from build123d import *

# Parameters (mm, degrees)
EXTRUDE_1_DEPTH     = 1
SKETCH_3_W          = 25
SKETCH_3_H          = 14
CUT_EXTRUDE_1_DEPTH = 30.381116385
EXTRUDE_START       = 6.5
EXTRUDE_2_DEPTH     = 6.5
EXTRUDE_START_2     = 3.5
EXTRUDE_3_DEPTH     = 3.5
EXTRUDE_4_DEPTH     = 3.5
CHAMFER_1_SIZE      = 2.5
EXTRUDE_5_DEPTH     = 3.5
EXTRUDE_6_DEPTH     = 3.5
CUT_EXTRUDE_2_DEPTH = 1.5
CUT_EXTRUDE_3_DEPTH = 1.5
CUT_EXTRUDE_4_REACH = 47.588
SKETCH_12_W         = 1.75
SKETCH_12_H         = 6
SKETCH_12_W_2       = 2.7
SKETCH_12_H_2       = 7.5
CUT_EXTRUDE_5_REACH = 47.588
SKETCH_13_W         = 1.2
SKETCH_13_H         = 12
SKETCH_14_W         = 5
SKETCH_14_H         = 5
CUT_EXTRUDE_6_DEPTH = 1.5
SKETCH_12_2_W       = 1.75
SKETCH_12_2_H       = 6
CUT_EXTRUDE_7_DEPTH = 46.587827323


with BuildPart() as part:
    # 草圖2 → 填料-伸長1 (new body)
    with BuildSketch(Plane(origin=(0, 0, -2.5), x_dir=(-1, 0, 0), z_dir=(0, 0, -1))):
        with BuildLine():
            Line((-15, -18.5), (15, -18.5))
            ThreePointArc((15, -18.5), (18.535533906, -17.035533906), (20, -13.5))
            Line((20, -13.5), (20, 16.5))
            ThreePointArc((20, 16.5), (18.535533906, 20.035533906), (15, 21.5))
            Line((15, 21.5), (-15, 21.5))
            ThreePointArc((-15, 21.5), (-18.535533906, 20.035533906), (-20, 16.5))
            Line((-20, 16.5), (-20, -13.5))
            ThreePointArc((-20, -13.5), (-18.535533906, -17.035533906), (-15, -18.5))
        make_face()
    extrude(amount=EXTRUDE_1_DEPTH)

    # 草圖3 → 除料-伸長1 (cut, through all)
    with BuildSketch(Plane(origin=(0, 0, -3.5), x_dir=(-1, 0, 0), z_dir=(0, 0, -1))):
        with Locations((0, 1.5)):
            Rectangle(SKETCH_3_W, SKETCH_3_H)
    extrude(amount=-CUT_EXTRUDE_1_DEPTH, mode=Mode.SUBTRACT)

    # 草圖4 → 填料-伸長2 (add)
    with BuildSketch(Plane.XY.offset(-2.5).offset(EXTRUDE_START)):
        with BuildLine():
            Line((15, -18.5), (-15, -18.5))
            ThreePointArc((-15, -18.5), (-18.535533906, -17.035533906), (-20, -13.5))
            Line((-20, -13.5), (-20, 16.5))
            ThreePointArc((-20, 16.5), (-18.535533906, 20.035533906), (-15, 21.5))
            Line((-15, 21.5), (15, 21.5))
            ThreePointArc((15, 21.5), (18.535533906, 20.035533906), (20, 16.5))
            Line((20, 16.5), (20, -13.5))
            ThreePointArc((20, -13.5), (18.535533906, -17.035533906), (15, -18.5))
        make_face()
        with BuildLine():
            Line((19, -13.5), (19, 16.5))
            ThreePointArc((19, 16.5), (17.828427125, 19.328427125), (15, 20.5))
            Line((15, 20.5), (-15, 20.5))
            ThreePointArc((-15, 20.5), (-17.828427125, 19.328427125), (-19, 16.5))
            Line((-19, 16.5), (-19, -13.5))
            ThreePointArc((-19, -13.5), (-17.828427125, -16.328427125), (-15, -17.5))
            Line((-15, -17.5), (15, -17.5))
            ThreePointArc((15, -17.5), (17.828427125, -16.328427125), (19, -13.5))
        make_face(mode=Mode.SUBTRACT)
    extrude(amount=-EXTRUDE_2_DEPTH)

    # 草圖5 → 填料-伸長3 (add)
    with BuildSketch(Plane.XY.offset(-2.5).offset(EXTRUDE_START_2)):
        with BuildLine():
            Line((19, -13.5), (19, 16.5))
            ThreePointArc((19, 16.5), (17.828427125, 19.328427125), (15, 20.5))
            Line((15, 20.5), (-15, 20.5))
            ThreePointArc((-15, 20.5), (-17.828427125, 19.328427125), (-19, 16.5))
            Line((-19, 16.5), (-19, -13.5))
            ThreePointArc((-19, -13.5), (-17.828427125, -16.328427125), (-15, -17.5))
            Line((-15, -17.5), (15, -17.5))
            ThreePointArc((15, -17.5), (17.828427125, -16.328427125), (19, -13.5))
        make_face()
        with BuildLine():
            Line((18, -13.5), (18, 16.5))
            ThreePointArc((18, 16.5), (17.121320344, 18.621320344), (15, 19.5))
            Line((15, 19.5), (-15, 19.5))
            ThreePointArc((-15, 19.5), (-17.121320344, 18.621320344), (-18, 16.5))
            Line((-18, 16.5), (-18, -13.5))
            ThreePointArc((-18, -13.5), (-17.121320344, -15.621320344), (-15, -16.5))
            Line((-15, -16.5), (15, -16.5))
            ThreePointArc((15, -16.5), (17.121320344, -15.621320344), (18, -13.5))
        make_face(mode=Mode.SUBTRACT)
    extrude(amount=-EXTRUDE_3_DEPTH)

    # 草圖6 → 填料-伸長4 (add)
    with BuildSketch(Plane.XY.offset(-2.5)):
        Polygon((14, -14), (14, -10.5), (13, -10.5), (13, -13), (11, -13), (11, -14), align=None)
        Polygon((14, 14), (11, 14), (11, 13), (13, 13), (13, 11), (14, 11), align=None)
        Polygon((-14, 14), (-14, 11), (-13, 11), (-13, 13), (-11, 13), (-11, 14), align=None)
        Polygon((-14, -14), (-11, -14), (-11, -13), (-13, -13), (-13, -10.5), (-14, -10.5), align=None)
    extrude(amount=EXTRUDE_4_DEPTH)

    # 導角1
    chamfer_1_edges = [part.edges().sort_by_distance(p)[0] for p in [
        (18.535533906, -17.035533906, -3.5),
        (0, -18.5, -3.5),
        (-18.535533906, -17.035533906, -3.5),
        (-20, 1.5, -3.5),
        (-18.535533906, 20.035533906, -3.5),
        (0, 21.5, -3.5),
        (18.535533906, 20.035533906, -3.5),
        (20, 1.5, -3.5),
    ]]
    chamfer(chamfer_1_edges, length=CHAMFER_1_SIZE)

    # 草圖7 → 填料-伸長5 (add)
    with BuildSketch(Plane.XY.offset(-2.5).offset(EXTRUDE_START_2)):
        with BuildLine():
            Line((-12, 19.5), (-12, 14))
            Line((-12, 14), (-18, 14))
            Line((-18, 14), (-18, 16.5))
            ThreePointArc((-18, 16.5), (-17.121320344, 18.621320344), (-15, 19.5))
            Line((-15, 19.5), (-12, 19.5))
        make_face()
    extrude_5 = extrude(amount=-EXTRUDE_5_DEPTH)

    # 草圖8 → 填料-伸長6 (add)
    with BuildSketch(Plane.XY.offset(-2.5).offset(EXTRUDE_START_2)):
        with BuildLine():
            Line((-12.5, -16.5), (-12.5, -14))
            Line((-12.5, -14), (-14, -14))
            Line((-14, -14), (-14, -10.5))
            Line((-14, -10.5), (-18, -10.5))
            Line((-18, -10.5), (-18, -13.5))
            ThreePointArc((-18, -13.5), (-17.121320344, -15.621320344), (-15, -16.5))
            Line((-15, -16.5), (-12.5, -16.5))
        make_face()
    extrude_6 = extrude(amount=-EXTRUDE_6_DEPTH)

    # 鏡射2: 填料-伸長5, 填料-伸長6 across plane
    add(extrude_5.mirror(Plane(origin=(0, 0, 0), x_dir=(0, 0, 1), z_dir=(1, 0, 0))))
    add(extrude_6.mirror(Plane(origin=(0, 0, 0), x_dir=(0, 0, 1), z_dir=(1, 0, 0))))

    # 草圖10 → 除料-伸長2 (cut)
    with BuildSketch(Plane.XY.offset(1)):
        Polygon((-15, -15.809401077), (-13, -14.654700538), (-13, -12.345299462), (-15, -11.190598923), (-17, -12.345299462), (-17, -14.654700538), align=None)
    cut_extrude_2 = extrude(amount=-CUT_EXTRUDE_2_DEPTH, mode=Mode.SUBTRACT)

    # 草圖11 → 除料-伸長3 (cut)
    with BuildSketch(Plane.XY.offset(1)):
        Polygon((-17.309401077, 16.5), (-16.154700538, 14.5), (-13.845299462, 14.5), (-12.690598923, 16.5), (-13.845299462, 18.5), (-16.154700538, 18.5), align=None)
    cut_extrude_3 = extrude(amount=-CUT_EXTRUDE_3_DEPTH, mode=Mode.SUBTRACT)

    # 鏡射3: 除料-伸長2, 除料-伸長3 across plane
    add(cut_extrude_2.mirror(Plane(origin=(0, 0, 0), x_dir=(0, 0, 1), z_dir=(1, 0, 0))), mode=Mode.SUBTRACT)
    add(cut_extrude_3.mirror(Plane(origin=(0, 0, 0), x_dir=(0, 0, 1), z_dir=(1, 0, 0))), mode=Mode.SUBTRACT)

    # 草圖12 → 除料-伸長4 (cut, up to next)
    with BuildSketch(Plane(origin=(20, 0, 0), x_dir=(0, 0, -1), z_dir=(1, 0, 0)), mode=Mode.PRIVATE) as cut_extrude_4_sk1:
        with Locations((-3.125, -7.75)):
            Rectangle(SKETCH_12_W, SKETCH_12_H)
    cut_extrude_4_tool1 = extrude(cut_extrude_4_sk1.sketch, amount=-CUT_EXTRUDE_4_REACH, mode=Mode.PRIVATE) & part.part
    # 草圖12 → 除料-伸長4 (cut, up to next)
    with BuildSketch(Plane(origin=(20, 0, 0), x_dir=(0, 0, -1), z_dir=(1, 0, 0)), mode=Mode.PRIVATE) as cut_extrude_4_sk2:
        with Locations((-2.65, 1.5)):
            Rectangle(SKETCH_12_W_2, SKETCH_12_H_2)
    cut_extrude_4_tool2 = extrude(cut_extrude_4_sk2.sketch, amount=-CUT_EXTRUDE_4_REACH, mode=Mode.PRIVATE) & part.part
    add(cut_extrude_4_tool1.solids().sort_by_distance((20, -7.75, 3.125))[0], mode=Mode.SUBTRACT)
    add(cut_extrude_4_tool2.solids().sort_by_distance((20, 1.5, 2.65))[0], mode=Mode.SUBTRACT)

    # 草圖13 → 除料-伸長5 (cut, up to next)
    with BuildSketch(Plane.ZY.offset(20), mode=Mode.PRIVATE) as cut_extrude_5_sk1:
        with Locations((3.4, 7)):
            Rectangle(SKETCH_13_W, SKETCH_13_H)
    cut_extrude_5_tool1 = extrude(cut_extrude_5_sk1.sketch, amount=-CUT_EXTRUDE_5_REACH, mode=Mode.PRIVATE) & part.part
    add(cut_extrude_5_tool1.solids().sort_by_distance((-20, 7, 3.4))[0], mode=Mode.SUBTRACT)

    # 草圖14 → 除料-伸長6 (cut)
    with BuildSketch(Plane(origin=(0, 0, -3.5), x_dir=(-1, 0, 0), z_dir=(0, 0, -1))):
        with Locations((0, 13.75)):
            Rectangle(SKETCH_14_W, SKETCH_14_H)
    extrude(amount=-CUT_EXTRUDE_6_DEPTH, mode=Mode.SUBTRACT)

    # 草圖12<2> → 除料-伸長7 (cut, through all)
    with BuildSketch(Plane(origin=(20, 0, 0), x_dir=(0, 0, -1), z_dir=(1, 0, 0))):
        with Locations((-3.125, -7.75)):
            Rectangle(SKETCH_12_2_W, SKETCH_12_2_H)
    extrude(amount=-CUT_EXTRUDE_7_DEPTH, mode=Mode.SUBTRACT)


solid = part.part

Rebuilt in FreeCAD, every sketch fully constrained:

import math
import FreeCAD as App
import Part
import Sketcher

V = App.Vector
Q = App.Units.Quantity


def edges_at(feature, points):
    """Names of the edges that pass closest to the given points."""
    edges = feature.Shape.Edges
    near = lambda p: min(range(len(edges)), key=lambda i: edges[i].distToShape(Part.Vertex(*p))[0])
    return sorted({f"Edge{near(p) + 1}" for p in points})

doc = App.newDocument("Part")
body = doc.addObject("PartDesign::Body", "Body")

sketch1 = doc.addObject("Sketcher::SketchObject", "Sketch")
body.addObject(sketch1)
sketch1.AttachmentSupport = (doc.XY_Plane, [""])
sketch1.MapMode = "FlatFace"
sketch1.AttachmentOffset = App.Placement(V(0, 0, -2.5), App.Rotation())
sketch1.addGeometry([
    Part.LineSegment(V(15, -18, 0), V(-15, -18, 0)),
    Part.ArcOfCircle(Part.Circle(V(-15, -14, 0), V(0, 0, 1), 5), math.radians(180), math.radians(270)),
    Part.LineSegment(V(-20, -14, 0), V(-20, 16, 0)),
    Part.ArcOfCircle(Part.Circle(V(-15, 16, 0), V(0, 0, 1), 5), math.radians(90), math.radians(180)),
    Part.LineSegment(V(-15, 22, 0), V(15, 22, 0)),
    Part.ArcOfCircle(Part.Circle(V(15, 16, 0), V(0, 0, 1), 5), math.radians(0), math.radians(90)),
    Part.LineSegment(V(20, 16, 0), V(20, -14, 0)),
    Part.ArcOfCircle(Part.Circle(V(15, -14, 0), V(0, 0, 1), 5), math.radians(-90), math.radians(0)),
], False)
sketch1.addConstraint([
    Sketcher.Constraint("Tangent", 0, 2, 1, 2),
    Sketcher.Constraint("Tangent", 1, 1, 2, 1),
    Sketcher.Constraint("Tangent", 2, 2, 3, 2),
    Sketcher.Constraint("Tangent", 3, 1, 4, 1),
    Sketcher.Constraint("Tangent", 4, 2, 5, 2),
    Sketcher.Constraint("Tangent", 5, 1, 6, 1),
    Sketcher.Constraint("Tangent", 6, 2, 7, 2),
    Sketcher.Constraint("Tangent", 7, 1, 0, 1),
    Sketcher.Constraint("Horizontal", 0),
    Sketcher.Constraint("Vertical", 2),
    Sketcher.Constraint("Horizontal", 4),
    Sketcher.Constraint("Vertical", 6),
    Sketcher.Constraint("Equal", 1, 3),
    Sketcher.Constraint("Equal", 3, 5),
    Sketcher.Constraint("Equal", 5, 7),
    Sketcher.Constraint("Equal", 4, 2),
    Sketcher.Constraint("Radius", 1, 5.0),
    Sketcher.Constraint("DistanceX", 0, 2, 0, 1, 30.0),
    Sketcher.Constraint("DistanceX", 1, 3, -1, 1, 15.0),
    Sketcher.Constraint("DistanceY", 1, 3, -1, 1, 13.5),
])
pad1 = doc.addObject("PartDesign::Pad", "Pad")
body.addObject(pad1)
pad1.Profile = sketch1
pad1.Length = 1
pad1.Reversed = True

sketch2 = doc.addObject("Sketcher::SketchObject", "Sketch001")
body.addObject(sketch2)
sketch2.AttachmentSupport = (doc.XY_Plane, [""])
sketch2.MapMode = "FlatFace"
sketch2.AttachmentOffset = App.Placement(V(0, 0, -3.5), App.Rotation())
sketch2.addGeometry([
    Part.LineSegment(V(12, 8, 0), V(12, -6, 0)),
    Part.LineSegment(V(12, -6, 0), V(-12, -6, 0)),
    Part.LineSegment(V(-12, -6, 0), V(-12, 8, 0)),
    Part.LineSegment(V(-12, 8, 0), V(12, 8, 0)),
], False)
sketch2.addConstraint([
    Sketcher.Constraint("Coincident", 0, 2, 1, 1),
    Sketcher.Constraint("Coincident", 1, 2, 2, 1),
    Sketcher.Constraint("Coincident", 2, 2, 3, 1),
    Sketcher.Constraint("Coincident", 3, 2, 0, 1),
    Sketcher.Constraint("Vertical", 0),
    Sketcher.Constraint("Horizontal", 1),
    Sketcher.Constraint("Vertical", 2),
    Sketcher.Constraint("Horizontal", 3),
    Sketcher.Constraint("DistanceX", 1, 2, 1, 1, 25.0),
    Sketcher.Constraint("DistanceY", 0, 2, 0, 1, 14.0),
    Sketcher.Constraint("DistanceX", -1, 1, 0, 2, 12.5),
    Sketcher.Constraint("DistanceY", 0, 2, -1, 1, 5.5),
])
pocket1 = doc.addObject("PartDesign::Pocket", "Pocket")
body.addObject(pocket1)
pocket1.Profile = sketch2
pocket1.Type = "ThroughAll"
pocket1.Reversed = True

sketch3 = doc.addObject("Sketcher::SketchObject", "Sketch002")
body.addObject(sketch3)
sketch3.AttachmentSupport = (doc.XY_Plane, [""])
sketch3.MapMode = "FlatFace"
sketch3.AttachmentOffset = App.Placement(V(0, 0, 4), App.Rotation())
sketch3.addGeometry([
    Part.LineSegment(V(-15, -18.5, 0), V(15, -18.5, 0)),
    Part.ArcOfCircle(Part.Circle(V(15, -13.5, 0), V(0, 0, 1), 5), math.radians(-90), math.radians(0)),
    Part.LineSegment(V(20, -13.5, 0), V(20, 16.5, 0)),
    Part.ArcOfCircle(Part.Circle(V(15, 16.5, 0), V(0, 0, 1), 5), math.radians(0), math.radians(90)),
    Part.LineSegment(V(15, 21.5, 0), V(-15, 21.5, 0)),
    Part.ArcOfCircle(Part.Circle(V(-15, 16.5, 0), V(0, 0, 1), 5), math.radians(90), math.radians(180)),
    Part.LineSegment(V(-20, 16.5, 0), V(-20, -13.5, 0)),
    Part.ArcOfCircle(Part.Circle(V(-15, -13.5, 0), V(0, 0, 1), 5), math.radians(180), math.radians(270)),
    Part.ArcOfCircle(Part.Circle(V(15, -13.5, 0), V(0, 0, 1), 4), math.radians(-90), math.radians(0)),
    Part.LineSegment(V(15, -17.5, 0), V(-15, -17.5, 0)),
    Part.ArcOfCircle(Part.Circle(V(-15, -13.5, 0), V(0, 0, 1), 4), math.radians(180), math.radians(270)),
    Part.LineSegment(V(-19, -13.5, 0), V(-19, 16.5, 0)),
    Part.ArcOfCircle(Part.Circle(V(-15, 16.5, 0), V(0, 0, 1), 4), math.radians(90), math.radians(180)),
    Part.LineSegment(V(-15, 20.5, 0), V(15, 20.5, 0)),
    Part.ArcOfCircle(Part.Circle(V(15, 16.5, 0), V(0, 0, 1), 4), math.radians(0), math.radians(90)),
    Part.LineSegment(V(19, 16.5, 0), V(19, -13.5, 0)),
], False)
sketch3.addConstraint([
    Sketcher.Constraint("Tangent", 0, 2, 1, 1),
    Sketcher.Constraint("Tangent", 1, 2, 2, 1),
    Sketcher.Constraint("Tangent", 2, 2, 3, 1),
    Sketcher.Constraint("Tangent", 3, 2, 4, 1),
    Sketcher.Constraint("Tangent", 4, 2, 5, 1),
    Sketcher.Constraint("Tangent", 5, 2, 6, 1),
    Sketcher.Constraint("Tangent", 6, 2, 7, 1),
    Sketcher.Constraint("Tangent", 7, 2, 0, 1),
    Sketcher.Constraint("Tangent", 8, 1, 9, 1),
    Sketcher.Constraint("Tangent", 9, 2, 10, 2),
    Sketcher.Constraint("Tangent", 10, 1, 11, 1),
    Sketcher.Constraint("Tangent", 11, 2, 12, 2),
    Sketcher.Constraint("Tangent", 12, 1, 13, 1),
    Sketcher.Constraint("Tangent", 13, 2, 14, 2),
    Sketcher.Constraint("Tangent", 14, 1, 15, 1),
    Sketcher.Constraint("Tangent", 15, 2, 8, 2),
    Sketcher.Constraint("Horizontal", 0),
    Sketcher.Constraint("Vertical", 2),
    Sketcher.Constraint("Horizontal", 4),
    Sketcher.Constraint("Vertical", 6),
    Sketcher.Constraint("Horizontal", 9),
    Sketcher.Constraint("Vertical", 11),
    Sketcher.Constraint("Horizontal", 13),
    Sketcher.Constraint("Vertical", 15),
    Sketcher.Constraint("Coincident", 8, 3, 1, 3),
    Sketcher.Constraint("Coincident", 10, 3, 7, 3),
    Sketcher.Constraint("Coincident", 12, 3, 5, 3),
    Sketcher.Constraint("Equal", 1, 3),
    Sketcher.Constraint("Equal", 3, 5),
    Sketcher.Constraint("Equal", 5, 7),
    Sketcher.Constraint("Equal", 12, 14),
    Sketcher.Constraint("Equal", 13, 2),
    Sketcher.Constraint("Radius", 1, 5.0),
    Sketcher.Constraint("Radius", 8, 4.0),
    Sketcher.Constraint("DistanceX", 0, 1, 0, 2, 30.0),
    Sketcher.Constraint("DistanceX", -1, 1, 1, 3, 15.0),
    Sketcher.Constraint("DistanceY", 1, 3, -1, 1, 13.5),
])
pad2 = doc.addObject("PartDesign::Pad", "Pad001")
body.addObject(pad2)
pad2.Profile = sketch3
pad2.Length = 6.5
pad2.Reversed = True

sketch4 = doc.addObject("Sketcher::SketchObject", "Sketch003")
body.addObject(sketch4)
sketch4.AttachmentSupport = (doc.XY_Plane, [""])
sketch4.MapMode = "FlatFace"
sketch4.AttachmentOffset = App.Placement(V(0, 0, 1), App.Rotation())
sketch4.addGeometry([
    Part.LineSegment(V(19, -13.5, 0), V(19, 16.5, 0)),
    Part.ArcOfCircle(Part.Circle(V(15, 16.5, 0), V(0, 0, 1), 4), math.radians(0), math.radians(90)),
    Part.LineSegment(V(15, 20.5, 0), V(-15, 20.5, 0)),
    Part.ArcOfCircle(Part.Circle(V(-15, 16.5, 0), V(0, 0, 1), 4), math.radians(90), math.radians(180)),
    Part.LineSegment(V(-19, 16.5, 0), V(-19, -13.5, 0)),
    Part.ArcOfCircle(Part.Circle(V(-15, -13.5, 0), V(0, 0, 1), 4), math.radians(180), math.radians(270)),
    Part.LineSegment(V(-15, -17.5, 0), V(15, -17.5, 0)),
    Part.ArcOfCircle(Part.Circle(V(15, -13.5, 0), V(0, 0, 1), 4), math.radians(-90), math.radians(0)),
    Part.LineSegment(V(18, 16.5, 0), V(18, -13.5, 0)),
    Part.ArcOfCircle(Part.Circle(V(15, -13.5, 0), V(0, 0, 1), 3), math.radians(-90), math.radians(0)),
    Part.LineSegment(V(15, -16.5, 0), V(-15, -16.5, 0)),
    Part.ArcOfCircle(Part.Circle(V(-15, -13.5, 0), V(0, 0, 1), 3), math.radians(180), math.radians(270)),
    Part.LineSegment(V(-18, -13.5, 0), V(-18, 16.5, 0)),
    Part.ArcOfCircle(Part.Circle(V(-15, 16.5, 0), V(0, 0, 1), 3), math.radians(90), math.radians(180)),
    Part.LineSegment(V(-15, 19.5, 0), V(15, 19.5, 0)),
    Part.ArcOfCircle(Part.Circle(V(15, 16.5, 0), V(0, 0, 1), 3), math.radians(0), math.radians(90)),
], False)
sketch4.addConstraint([
    Sketcher.Constraint("Tangent", 0, 2, 1, 1),
    Sketcher.Constraint("Tangent", 1, 2, 2, 1),
    Sketcher.Constraint("Tangent", 2, 2, 3, 1),
    Sketcher.Constraint("Tangent", 3, 2, 4, 1),
    Sketcher.Constraint("Tangent", 4, 2, 5, 1),
    Sketcher.Constraint("Tangent", 5, 2, 6, 1),
    Sketcher.Constraint("Tangent", 6, 2, 7, 1),
    Sketcher.Constraint("Tangent", 7, 2, 0, 1),
    Sketcher.Constraint("Tangent", 8, 2, 9, 2),
    Sketcher.Constraint("Tangent", 9, 1, 10, 1),
    Sketcher.Constraint("Tangent", 10, 2, 11, 2),
    Sketcher.Constraint("Tangent", 11, 1, 12, 1),
    Sketcher.Constraint("Tangent", 12, 2, 13, 2),
    Sketcher.Constraint("Tangent", 13, 1, 14, 1),
    Sketcher.Constraint("Tangent", 14, 2, 15, 2),
    Sketcher.Constraint("Tangent", 15, 1, 8, 1),
    Sketcher.Constraint("Vertical", 0),
    Sketcher.Constraint("Horizontal", 2),
    Sketcher.Constraint("Vertical", 4),
    Sketcher.Constraint("Horizontal", 6),
    Sketcher.Constraint("Vertical", 8),
    Sketcher.Constraint("Horizontal", 10),
    Sketcher.Constraint("Vertical", 12),
    Sketcher.Constraint("Horizontal", 14),
    Sketcher.Constraint("Coincident", 9, 3, 7, 3),
    Sketcher.Constraint("Coincident", 11, 3, 5, 3),
    Sketcher.Constraint("Coincident", 13, 3, 3, 3),
    Sketcher.Constraint("Equal", 1, 3),
    Sketcher.Constraint("Equal", 3, 5),
    Sketcher.Constraint("Equal", 5, 7),
    Sketcher.Constraint("Equal", 13, 15),
    Sketcher.Constraint("Equal", 14, 0),
    Sketcher.Constraint("Radius", 1, 4.0),
    Sketcher.Constraint("Radius", 9, 3.0),
    Sketcher.Constraint("DistanceX", 2, 2, 2, 1, 30.0),
    Sketcher.Constraint("DistanceX", -1, 1, 1, 3, 15.0),
    Sketcher.Constraint("DistanceY", -1, 1, 1, 3, 16.5),
])
pad3 = doc.addObject("PartDesign::Pad", "Pad002")
body.addObject(pad3)
pad3.Profile = sketch4
pad3.Length = 3.5
pad3.Reversed = True

sketch5 = doc.addObject("Sketcher::SketchObject", "Sketch004")
body.addObject(sketch5)
sketch5.AttachmentSupport = (doc.XY_Plane, [""])
sketch5.MapMode = "FlatFace"
sketch5.AttachmentOffset = App.Placement(V(0, 0, -2.5), App.Rotation())
sketch5.addGeometry([
    Part.LineSegment(V(14, -14, 0), V(14, -10.5, 0)),
    Part.LineSegment(V(14, -10.5, 0), V(13, -10.5, 0)),
    Part.LineSegment(V(13, -10.5, 0), V(13, -13, 0)),
    Part.LineSegment(V(13, -13, 0), V(11, -13, 0)),
    Part.LineSegment(V(11, -13, 0), V(11, -14, 0)),
    Part.LineSegment(V(11, -14, 0), V(14, -14, 0)),
    Part.LineSegment(V(14, 14, 0), V(11, 14, 0)),
    Part.LineSegment(V(11, 14, 0), V(11, 13, 0)),
    Part.LineSegment(V(11, 13, 0), V(13, 13, 0)),
    Part.LineSegment(V(13, 13, 0), V(13, 11, 0)),
    Part.LineSegment(V(13, 11, 0), V(14, 11, 0)),
    Part.LineSegment(V(14, 11, 0), V(14, 14, 0)),
    Part.LineSegment(V(-14, 14, 0), V(-14, 11, 0)),
    Part.LineSegment(V(-14, 11, 0), V(-13, 11, 0)),
    Part.LineSegment(V(-13, 11, 0), V(-13, 13, 0)),
    Part.LineSegment(V(-13, 13, 0), V(-11, 13, 0)),
    Part.LineSegment(V(-11, 13, 0), V(-11, 14, 0)),
    Part.LineSegment(V(-11, 14, 0), V(-14, 14, 0)),
    Part.LineSegment(V(-14, -14, 0), V(-11, -14, 0)),
    Part.LineSegment(V(-11, -14, 0), V(-11, -13, 0)),
    Part.LineSegment(V(-11, -13, 0), V(-13, -13, 0)),
    Part.LineSegment(V(-13, -13, 0), V(-13, -10.5, 0)),
    Part.LineSegment(V(-13, -10.5, 0), V(-14, -10.5, 0)),
    Part.LineSegment(V(-14, -10.5, 0), V(-14, -14, 0)),
], False)
sketch5.addConstraint([
    Sketcher.Constraint("Coincident", 0, 2, 1, 1),
    Sketcher.Constraint("Coincident", 1, 2, 2, 1),
    Sketcher.Constraint("Coincident", 2, 2, 3, 1),
    Sketcher.Constraint("Coincident", 3, 2, 4, 1),
    Sketcher.Constraint("Coincident", 4, 2, 5, 1),
    Sketcher.Constraint("Coincident", 5, 2, 0, 1),
    Sketcher.Constraint("Coincident", 6, 2, 7, 1),
    Sketcher.Constraint("Coincident", 7, 2, 8, 1),
    Sketcher.Constraint("Coincident", 8, 2, 9, 1),
    Sketcher.Constraint("Coincident", 9, 2, 10, 1),
    Sketcher.Constraint("Coincident", 10, 2, 11, 1),
    Sketcher.Constraint("Coincident", 11, 2, 6, 1),
    Sketcher.Constraint("Coincident", 12, 2, 13, 1),
    Sketcher.Constraint("Coincident", 13, 2, 14, 1),
    Sketcher.Constraint("Coincident", 14, 2, 15, 1),
    Sketcher.Constraint("Coincident", 15, 2, 16, 1),
    Sketcher.Constraint("Coincident", 16, 2, 17, 1),
    Sketcher.Constraint("Coincident", 17, 2, 12, 1),
    Sketcher.Constraint("Coincident", 18, 2, 19, 1),
    Sketcher.Constraint("Coincident", 19, 2, 20, 1),
    Sketcher.Constraint("Coincident", 20, 2, 21, 1),
    Sketcher.Constraint("Coincident", 21, 2, 22, 1),
    Sketcher.Constraint("Coincident", 22, 2, 23, 1),
    Sketcher.Constraint("Coincident", 23, 2, 18, 1),
    Sketcher.Constraint("Vertical", 0),
    Sketcher.Constraint("Horizontal", 1),
    Sketcher.Constraint("Vertical", 2),
    Sketcher.Constraint("Horizontal", 3),
    Sketcher.Constraint("Vertical", 4),
    Sketcher.Constraint("Horizontal", 5),
    Sketcher.Constraint("Horizontal", 6),
    Sketcher.Constraint("Vertical", 7),
    Sketcher.Constraint("Horizontal", 8),
    Sketcher.Constraint("Vertical", 9),
    Sketcher.Constraint("Horizontal", 10),
    Sketcher.Constraint("Vertical", 11),
    Sketcher.Constraint("Vertical", 12),
    Sketcher.Constraint("Horizontal", 13),
    Sketcher.Constraint("Vertical", 14),
    Sketcher.Constraint("Horizontal", 15),
    Sketcher.Constraint("Vertical", 16),
    Sketcher.Constraint("Horizontal", 17),
    Sketcher.Constraint("Horizontal", 18),
    Sketcher.Constraint("Vertical", 19),
    Sketcher.Constraint("Horizontal", 20),
    Sketcher.Constraint("Vertical", 21),
    Sketcher.Constraint("Horizontal", 22),
    Sketcher.Constraint("Vertical", 23),
    Sketcher.Constraint("Symmetric", 2, 2, 14, 2, -1, 1),
    Sketcher.Constraint("Symmetric", 4, 2, 16, 2, -1, 1),
    Sketcher.Constraint("Symmetric", 6, 2, 18, 2, -1, 1),
    Sketcher.Constraint("Symmetric", 8, 2, 20, 2, -1, 1),
    Sketcher.Constraint("Symmetric", 10, 2, 12, 2, -2),
    Sketcher.Constraint("Symmetric", 8, 2, 14, 2, -2),
    Sketcher.Constraint("Symmetric", 6, 2, 16, 2, -2),
    Sketcher.Constraint("Symmetric", 0, 2, 22, 2, -2),
    Sketcher.Constraint("Vertical", 5, 2, 10, 2),
    Sketcher.Constraint("Equal", 22, 4),
    Sketcher.Constraint("Equal", 20, 9),
    Sketcher.Constraint("DistanceX", 1, 2, 1, 1, 1.0),
    Sketcher.Constraint("DistanceX", 3, 2, 3, 1, 2.0),
    Sketcher.Constraint("DistanceY", 0, 1, 0, 2, 3.5),
    Sketcher.Constraint("DistanceX", -1, 1, 0, 2, 14.0),
    Sketcher.Constraint("DistanceY", 2, 2, -1, 1, 13.0),
])
pad4 = doc.addObject("PartDesign::Pad", "Pad003")
body.addObject(pad4)
pad4.Profile = sketch5
pad4.Length = 3.5
doc.recompute()

chamfer = doc.addObject("PartDesign::Chamfer", "Chamfer")
body.addObject(chamfer)
chamfer.Base = (pad4, edges_at(pad4, [
    (18.536, -17.036, -3.5),
    (0, -18.5, -3.5),
    (-18.536, -17.036, -3.5),
    (-20, 1.5, -3.5),
    (-18.536, 20.036, -3.5),
    (0, 21.5, -3.5),
    (18.536, 20.036, -3.5),
    (20, 1.5, -3.5),
]))
chamfer.Size = 2.5

sketch6 = doc.addObject("Sketcher::SketchObject", "Sketch005")
body.addObject(sketch6)
sketch6.AttachmentSupport = (doc.XY_Plane, [""])
sketch6.MapMode = "FlatFace"
sketch6.AttachmentOffset = App.Placement(V(0, 0, 1), App.Rotation())
sketch6.addGeometry([
    Part.LineSegment(V(-12, 14, 0), V(-12, 19.5, 0)),
    Part.LineSegment(V(-12, 19.5, 0), V(-15, 19.5, 0)),
    Part.ArcOfCircle(Part.Circle(V(-15, 16.5, 0), V(0, 0, 1), 3), math.radians(90), math.radians(180)),
    Part.LineSegment(V(-18, 16.5, 0), V(-18, 14, 0)),
    Part.LineSegment(V(-18, 14, 0), V(-12, 14, 0)),
], False)
sketch6.addConstraint([
    Sketcher.Constraint("Coincident", 0, 2, 1, 1),
    Sketcher.Constraint("Tangent", 1, 2, 2, 1),
    Sketcher.Constraint("Tangent", 2, 2, 3, 1),
    Sketcher.Constraint("Coincident", 3, 2, 4, 1),
    Sketcher.Constraint("Coincident", 4, 2, 0, 1),
    Sketcher.Constraint("Vertical", 0),
    Sketcher.Constraint("Horizontal", 1),
    Sketcher.Constraint("Vertical", 3),
    Sketcher.Constraint("Horizontal", 4),
    Sketcher.Constraint("Radius", 2, 3.0),
    Sketcher.Constraint("DistanceX", 1, 2, 1, 1, 3.0),
    Sketcher.Constraint("DistanceY", 0, 1, 0, 2, 5.5),
    Sketcher.Constraint("DistanceX", 2, 3, -1, 1, 15.0),
    Sketcher.Constraint("DistanceY", -1, 1, 3, 2, 14.0),
])
pad5 = doc.addObject("PartDesign::Pad", "Pad004")
body.addObject(pad5)
pad5.Profile = sketch6
pad5.Length = 3.5
pad5.Reversed = True

sketch7 = doc.addObject("Sketcher::SketchObject", "Sketch006")
body.addObject(sketch7)
sketch7.AttachmentSupport = (doc.XY_Plane, [""])
sketch7.MapMode = "FlatFace"
sketch7.AttachmentOffset = App.Placement(V(0, 0, 1), App.Rotation())
sketch7.addGeometry([
    Part.LineSegment(V(-12.5, -16.5, 0), V(-12.5, -14, 0)),
    Part.LineSegment(V(-12.5, -14, 0), V(-14, -14, 0)),
    Part.LineSegment(V(-14, -14, 0), V(-14, -10.5, 0)),
    Part.LineSegment(V(-14, -10.5, 0), V(-18, -10.5, 0)),
    Part.LineSegment(V(-18, -10.5, 0), V(-18, -13.5, 0)),
    Part.ArcOfCircle(Part.Circle(V(-15, -13.5, 0), V(0, 0, 1), 3), math.radians(180), math.radians(270)),
    Part.LineSegment(V(-15, -16.5, 0), V(-12.5, -16.5, 0)),
], False)
sketch7.addConstraint([
    Sketcher.Constraint("Coincident", 0, 2, 1, 1),
    Sketcher.Constraint("Coincident", 1, 2, 2, 1),
    Sketcher.Constraint("Coincident", 2, 2, 3, 1),
    Sketcher.Constraint("Coincident", 3, 2, 4, 1),
    Sketcher.Constraint("Tangent", 4, 2, 5, 1),
    Sketcher.Constraint("Tangent", 5, 2, 6, 1),
    Sketcher.Constraint("Coincident", 6, 2, 0, 1),
    Sketcher.Constraint("Vertical", 0),
    Sketcher.Constraint("Horizontal", 1),
    Sketcher.Constraint("Vertical", 2),
    Sketcher.Constraint("Horizontal", 3),
    Sketcher.Constraint("Vertical", 4),
    Sketcher.Constraint("Horizontal", 6),
    Sketcher.Constraint("Equal", 6, 0),
    Sketcher.Constraint("Radius", 5, 3.0),
    Sketcher.Constraint("DistanceX", 3, 2, 3, 1, 4.0),
    Sketcher.Constraint("DistanceY", 4, 2, 4, 1, 3.0),
    Sketcher.Constraint("DistanceX", 1, 2, 1, 1, 1.5),
    Sketcher.Constraint("DistanceX", 5, 3, -1, 1, 15.0),
    Sketcher.Constraint("DistanceY", 0, 2, -1, 1, 14.0),
])
pad6 = doc.addObject("PartDesign::Pad", "Pad005")
body.addObject(pad6)
pad6.Profile = sketch7
pad6.Length = 3.5
pad6.Reversed = True
doc.recompute()

mirrored = doc.addObject("PartDesign::Mirrored", "Mirrored")
body.addObject(mirrored)
mirrored.Originals = [pad5, pad6]
mirrored.MirrorPlane = (doc.YZ_Plane, [""])
body.Tip = mirrored

sketch8 = doc.addObject("Sketcher::SketchObject", "Sketch007")
body.addObject(sketch8)
sketch8.AttachmentSupport = (doc.XY_Plane, [""])
sketch8.MapMode = "FlatFace"
sketch8.AttachmentOffset = App.Placement(V(0, 0, 1), App.Rotation())
sketch8.addGeometry([
    Part.LineSegment(V(-15, -15.8, 0), V(-13, -14.7, 0)),
    Part.LineSegment(V(-13, -14.7, 0), V(-13, -12.3, 0)),
    Part.LineSegment(V(-13, -12.3, 0), V(-15, -11.2, 0)),
    Part.LineSegment(V(-15, -11.2, 0), V(-17, -12.3, 0)),
    Part.LineSegment(V(-17, -12.3, 0), V(-17, -14.7, 0)),
    Part.LineSegment(V(-17, -14.7, 0), V(-15, -15.8, 0)),
], False)
sketch8.addConstraint([
    Sketcher.Constraint("Coincident", 0, 2, 1, 1),
    Sketcher.Constraint("Coincident", 1, 2, 2, 1),
    Sketcher.Constraint("Coincident", 2, 2, 3, 1),
    Sketcher.Constraint("Coincident", 3, 2, 4, 1),
    Sketcher.Constraint("Coincident", 4, 2, 5, 1),
    Sketcher.Constraint("Coincident", 5, 2, 0, 1),
    Sketcher.Constraint("Vertical", 1),
    Sketcher.Constraint("Vertical", 4),
    Sketcher.Constraint("Parallel", 0, 3),
    Sketcher.Constraint("Parallel", 2, 5),
    Sketcher.Constraint("Horizontal", 1, 2, 3, 2),
    Sketcher.Constraint("Horizontal", 0, 2, 4, 2),
    Sketcher.Constraint("Vertical", 2, 2, 5, 2),
    Sketcher.Constraint("Angle", 0, Q("30 deg")),
    Sketcher.Constraint("DistanceX", 0, 2, -1, 1, 13.0),
    Sketcher.Constraint("DistanceX", 2, 2, -1, 1, 15.0),
    Sketcher.Constraint("DistanceY", 1, 1, 1, 2, 2.309401),
    Sketcher.Constraint("DistanceY", 0, 2, -1, 1, 14.654701),
])
pocket2 = doc.addObject("PartDesign::Pocket", "Pocket001")
body.addObject(pocket2)
pocket2.Profile = sketch8
pocket2.Length = 1.5

sketch9 = doc.addObject("Sketcher::SketchObject", "Sketch008")
body.addObject(sketch9)
sketch9.AttachmentSupport = (doc.XY_Plane, [""])
sketch9.MapMode = "FlatFace"
sketch9.AttachmentOffset = App.Placement(V(0, 0, 1), App.Rotation())
sketch9.addGeometry([
    Part.LineSegment(V(-17.3, 16.5, 0), V(-16.2, 14.5, 0)),
    Part.LineSegment(V(-16.2, 14.5, 0), V(-13.8, 14.5, 0)),
    Part.LineSegment(V(-13.8, 14.5, 0), V(-12.7, 16.5, 0)),
    Part.LineSegment(V(-12.7, 16.5, 0), V(-13.8, 18.5, 0)),
    Part.LineSegment(V(-13.8, 18.5, 0), V(-16.2, 18.5, 0)),
    Part.LineSegment(V(-16.2, 18.5, 0), V(-17.3, 16.5, 0)),
], False)
sketch9.addConstraint([
    Sketcher.Constraint("Coincident", 0, 2, 1, 1),
    Sketcher.Constraint("Coincident", 1, 2, 2, 1),
    Sketcher.Constraint("Coincident", 2, 2, 3, 1),
    Sketcher.Constraint("Coincident", 3, 2, 4, 1),
    Sketcher.Constraint("Coincident", 4, 2, 5, 1),
    Sketcher.Constraint("Coincident", 5, 2, 0, 1),
    Sketcher.Constraint("Horizontal", 1),
    Sketcher.Constraint("Horizontal", 4),
    Sketcher.Constraint("Parallel", 0, 3),
    Sketcher.Constraint("Parallel", 2, 5),
    Sketcher.Constraint("Horizontal", 2, 2, 5, 2),
    Sketcher.Constraint("Vertical", 1, 2, 3, 2),
    Sketcher.Constraint("Vertical", 0, 2, 4, 2),
    Sketcher.Constraint("Angle", 0, Q("-60 deg")),
    Sketcher.Constraint("DistanceY", 1, 2, 2, 2, 2.0),
    Sketcher.Constraint("DistanceY", -1, 1, 0, 2, 14.5),
    Sketcher.Constraint("DistanceX", 1, 1, 1, 2, 2.309401),
    Sketcher.Constraint("DistanceX", 0, 2, -1, 1, 16.154701),
])
pocket3 = doc.addObject("PartDesign::Pocket", "Pocket002")
body.addObject(pocket3)
pocket3.Profile = sketch9
pocket3.Length = 1.5
doc.recompute()

mirrored2 = doc.addObject("PartDesign::Mirrored", "Mirrored001")
body.addObject(mirrored2)
mirrored2.Originals = [pocket2, pocket3]
mirrored2.MirrorPlane = (doc.YZ_Plane, [""])
body.Tip = mirrored2

sketch10 = doc.addObject("Sketcher::SketchObject", "Sketch009")
body.addObject(sketch10)
sketch10.AttachmentSupport = (doc.YZ_Plane, [""])
sketch10.MapMode = "FlatFace"
sketch10.AttachmentOffset = App.Placement(V(0, 0, 20), App.Rotation())
sketch10.addGeometry([
    Part.LineSegment(V(-4.8, 4, 0), V(-10.8, 4, 0)),
    Part.LineSegment(V(-10.8, 4, 0), V(-10.8, 2.2, 0)),
    Part.LineSegment(V(-10.8, 2.2, 0), V(-4.8, 2.2, 0)),
    Part.LineSegment(V(-4.8, 2.2, 0), V(-4.8, 4, 0)),
], False)
sketch10.addConstraint([
    Sketcher.Constraint("Coincident", 0, 2, 1, 1),
    Sketcher.Constraint("Coincident", 1, 2, 2, 1),
    Sketcher.Constraint("Coincident", 2, 2, 3, 1),
    Sketcher.Constraint("Coincident", 3, 2, 0, 1),
    Sketcher.Constraint("Horizontal", 0),
    Sketcher.Constraint("Vertical", 1),
    Sketcher.Constraint("Horizontal", 2),
    Sketcher.Constraint("Vertical", 3),
    Sketcher.Constraint("DistanceX", 0, 2, 0, 1, 6.0),
    Sketcher.Constraint("DistanceY", -1, 1, 0, 2, 4.0),
    Sketcher.Constraint("DistanceY", 1, 2, 1, 1, 1.75),
    Sketcher.Constraint("DistanceX", 0, 2, -1, 1, 10.75),
])
pocket4 = doc.addObject("PartDesign::Pocket", "Pocket003")
body.addObject(pocket4)
pocket4.Profile = sketch10
pocket4.Type = "UpToFirst"

sketch11 = doc.addObject("Sketcher::SketchObject", "Sketch010")
body.addObject(sketch11)
sketch11.AttachmentSupport = (doc.YZ_Plane, [""])
sketch11.MapMode = "FlatFace"
sketch11.AttachmentOffset = App.Placement(V(0, 0, 20), App.Rotation())
sketch11.addGeometry([
    Part.LineSegment(V(5.2, 4, 0), V(-2.2, 4, 0)),
    Part.LineSegment(V(-2.2, 4, 0), V(-2.2, 1.3, 0)),
    Part.LineSegment(V(-2.2, 1.3, 0), V(5.2, 1.3, 0)),
    Part.LineSegment(V(5.2, 1.3, 0), V(5.2, 4, 0)),
], False)
sketch11.addConstraint([
    Sketcher.Constraint("Coincident", 0, 2, 1, 1),
    Sketcher.Constraint("Coincident", 1, 2, 2, 1),
    Sketcher.Constraint("Coincident", 2, 2, 3, 1),
    Sketcher.Constraint("Coincident", 3, 2, 0, 1),
    Sketcher.Constraint("Horizontal", 0),
    Sketcher.Constraint("Vertical", 1),
    Sketcher.Constraint("Horizontal", 2),
    Sketcher.Constraint("Vertical", 3),
    Sketcher.Constraint("DistanceX", 0, 2, 0, 1, 7.5),
    Sketcher.Constraint("DistanceY", 1, 2, 1, 1, 2.7),
    Sketcher.Constraint("DistanceY", -1, 1, 0, 2, 4.0),
    Sketcher.Constraint("DistanceX", 0, 2, -1, 1, 2.25),
])
pocket5 = doc.addObject("PartDesign::Pocket", "Pocket004")
body.addObject(pocket5)
pocket5.Profile = sketch11
pocket5.Type = "UpToFirst"

sketch12 = doc.addObject("Sketcher::SketchObject", "Sketch011")
body.addObject(sketch12)
sketch12.AttachmentSupport = (doc.YZ_Plane, [""])
sketch12.MapMode = "FlatFace"
sketch12.AttachmentOffset = App.Placement(V(0, 0, -20), App.Rotation())
sketch12.addGeometry([
    Part.LineSegment(V(13, 2.8, 0), V(1, 2.8, 0)),
    Part.LineSegment(V(1, 2.8, 0), V(1, 4, 0)),
    Part.LineSegment(V(1, 4, 0), V(13, 4, 0)),
    Part.LineSegment(V(13, 4, 0), V(13, 2.8, 0)),
], False)
sketch12.addConstraint([
    Sketcher.Constraint("Coincident", 0, 2, 1, 1),
    Sketcher.Constraint("Coincident", 1, 2, 2, 1),
    Sketcher.Constraint("Coincident", 2, 2, 3, 1),
    Sketcher.Constraint("Coincident", 3, 2, 0, 1),
    Sketcher.Constraint("Horizontal", 0),
    Sketcher.Constraint("Vertical", 1),
    Sketcher.Constraint("Horizontal", 2),
    Sketcher.Constraint("Vertical", 3),
    Sketcher.Constraint("DistanceX", 0, 2, 0, 1, 12.0),
    Sketcher.Constraint("DistanceY", 1, 1, 1, 2, 1.2),
    Sketcher.Constraint("DistanceX", -1, 1, 0, 2, 1.0),
    Sketcher.Constraint("DistanceY", -1, 1, 1, 2, 4.0),
])
pocket6 = doc.addObject("PartDesign::Pocket", "Pocket005")
body.addObject(pocket6)
pocket6.Profile = sketch12
pocket6.Type = "UpToFirst"
pocket6.Reversed = True

sketch13 = doc.addObject("Sketcher::SketchObject", "Sketch012")
body.addObject(sketch13)
sketch13.AttachmentSupport = (doc.XY_Plane, [""])
sketch13.MapMode = "FlatFace"
sketch13.AttachmentOffset = App.Placement(V(0, 0, -3.5), App.Rotation())
sketch13.addGeometry([
    Part.LineSegment(V(2, 16, 0), V(2, 11, 0)),
    Part.LineSegment(V(2, 11, 0), V(-2, 11, 0)),
    Part.LineSegment(V(-2, 11, 0), V(-2, 16, 0)),
    Part.LineSegment(V(-2, 16, 0), V(2, 16, 0)),
], False)
sketch13.addConstraint([
    Sketcher.Constraint("Coincident", 0, 2, 1, 1),
    Sketcher.Constraint("Coincident", 1, 2, 2, 1),
    Sketcher.Constraint("Coincident", 2, 2, 3, 1),
    Sketcher.Constraint("Coincident", 3, 2, 0, 1),
    Sketcher.Constraint("Vertical", 0),
    Sketcher.Constraint("Horizontal", 1),
    Sketcher.Constraint("Vertical", 2),
    Sketcher.Constraint("Horizontal", 3),
    Sketcher.Constraint("Equal", 3, 0),
    Sketcher.Constraint("DistanceX", 1, 2, 1, 1, 5.0),
    Sketcher.Constraint("DistanceX", -1, 1, 0, 2, 2.5),
    Sketcher.Constraint("DistanceY", -1, 1, 0, 2, 11.25),
])
pocket7 = doc.addObject("PartDesign::Pocket", "Pocket006")
body.addObject(pocket7)
pocket7.Profile = sketch13
pocket7.Length = 1.5
pocket7.Reversed = True

sketch14 = doc.addObject("Sketcher::SketchObject", "Sketch013")
body.addObject(sketch14)
sketch14.AttachmentSupport = (doc.YZ_Plane, [""])
sketch14.MapMode = "FlatFace"
sketch14.AttachmentOffset = App.Placement(V(0, 0, 20), App.Rotation())
sketch14.addGeometry([
    Part.LineSegment(V(-4.8, 4, 0), V(-10.8, 4, 0)),
    Part.LineSegment(V(-10.8, 4, 0), V(-10.8, 2.2, 0)),
    Part.LineSegment(V(-10.8, 2.2, 0), V(-4.8, 2.2, 0)),
    Part.LineSegment(V(-4.8, 2.2, 0), V(-4.8, 4, 0)),
], False)
sketch14.addConstraint([
    Sketcher.Constraint("Coincident", 0, 2, 1, 1),
    Sketcher.Constraint("Coincident", 1, 2, 2, 1),
    Sketcher.Constraint("Coincident", 2, 2, 3, 1),
    Sketcher.Constraint("Coincident", 3, 2, 0, 1),
    Sketcher.Constraint("Horizontal", 0),
    Sketcher.Constraint("Vertical", 1),
    Sketcher.Constraint("Horizontal", 2),
    Sketcher.Constraint("Vertical", 3),
    Sketcher.Constraint("DistanceX", 0, 2, 0, 1, 6.0),
    Sketcher.Constraint("DistanceY", -1, 1, 0, 2, 4.0),
    Sketcher.Constraint("DistanceY", 1, 2, 1, 1, 1.75),
    Sketcher.Constraint("DistanceX", 0, 2, -1, 1, 10.75),
])
pocket8 = doc.addObject("PartDesign::Pocket", "Pocket007")
body.addObject(pocket8)
pocket8.Profile = sketch14
pocket8.Type = "ThroughAll"

doc.recompute()
